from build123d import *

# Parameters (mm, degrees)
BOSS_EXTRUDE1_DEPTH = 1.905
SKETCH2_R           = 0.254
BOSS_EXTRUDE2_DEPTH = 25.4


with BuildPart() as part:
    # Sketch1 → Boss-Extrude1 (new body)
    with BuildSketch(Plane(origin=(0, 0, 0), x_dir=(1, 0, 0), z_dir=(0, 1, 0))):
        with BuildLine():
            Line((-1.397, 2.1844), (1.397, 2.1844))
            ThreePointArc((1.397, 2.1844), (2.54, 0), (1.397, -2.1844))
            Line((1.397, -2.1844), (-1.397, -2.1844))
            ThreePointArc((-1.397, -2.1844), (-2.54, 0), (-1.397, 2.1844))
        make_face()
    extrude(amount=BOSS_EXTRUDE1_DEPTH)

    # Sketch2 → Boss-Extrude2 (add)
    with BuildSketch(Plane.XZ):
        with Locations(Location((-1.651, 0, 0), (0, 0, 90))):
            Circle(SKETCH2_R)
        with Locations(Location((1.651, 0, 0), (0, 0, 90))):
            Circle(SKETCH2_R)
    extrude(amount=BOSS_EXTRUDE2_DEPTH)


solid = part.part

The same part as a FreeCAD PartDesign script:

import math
import FreeCAD as App
import Part
import Sketcher
Q = App.Units.Quantity

doc = App.newDocument("Part")
body = doc.addObject("PartDesign::Body", "Body")

# Sketch on XZ plane
sketch1 = doc.addObject("Sketcher::SketchObject", "Sketch")
body.addObject(sketch1)
sketch1.AttachmentSupport = (doc.XZ_Plane, [""])
sketch1.MapMode = "FlatFace"
sketch1.addGeometry([
    Part.LineSegment(App.Vector(1.397, -2.1844, 0), App.Vector(-1.397, -2.1844, 0)),
    Part.ArcOfCircle(Part.Circle(App.Vector(0.118816, 0, 0), App.Vector(0, 0, 1), 2.658816), math.radians(124.75785), math.radians(235.24215)),
    Part.LineSegment(App.Vector(-1.397, 2.1844, 0), App.Vector(1.397, 2.1844, 0)),
    Part.ArcOfCircle(Part.Circle(App.Vector(-0.118816, 0, 0), App.Vector(0, 0, 1), 2.658816), math.radians(-55.24215), math.radians(55.24215)),
], False)
sketch1.addConstraint([
    Sketcher.Constraint("Coincident", 0, 2, 1, 2),
    Sketcher.Constraint("Coincident", 1, 1, 2, 1),
    Sketcher.Constraint("Coincident", 2, 2, 3, 2),
    Sketcher.Constraint("Coincident", 3, 1, 0, 1),
    Sketcher.Constraint("Horizontal", 0),
    Sketcher.Constraint("Horizontal", 2),
    Sketcher.Constraint("Equal", 1, 3),
    Sketcher.Constraint("Symmetric", 1, 3, 3, 3, -1, 1),
    Sketcher.Constraint("Symmetric", 0, 2, 1, 1, -1),
    Sketcher.Constraint("DistanceX", 0, 2, 0, 1, Q("0.11 in")),
    Sketcher.Constraint("DistanceY", 0, 2, -1, 1, Q("0.086 in")),
    Sketcher.Constraint("Radius", 1, Q("2.658816 mm")),
])
pad1 = doc.addObject("PartDesign::Pad", "Pad")
body.addObject(pad1)
pad1.Profile = sketch1
pad1.Length = Q("0.075 in")
pad1.Reversed = True

# Sketch on XZ plane
sketch2 = doc.addObject("Sketcher::SketchObject", "Sketch001")
body.addObject(sketch2)
sketch2.AttachmentSupport = (doc.XZ_Plane, [""])
sketch2.MapMode = "FlatFace"
sketch2.addGeometry([
    Part.Circle(App.Vector(-1.651, 0, 0), App.Vector(0, 0, 1), 0.254),
    Part.Circle(App.Vector(1.651, 0, 0), App.Vector(0, 0, 1), 0.254),
], False)
sketch2.addConstraint([
    Sketcher.Constraint("Equal", 0, 1),
    Sketcher.Constraint("Symmetric", 0, 3, 1, 3, -1, 1),
    Sketcher.Constraint("PointOnObject", 0, 3, -1),
    Sketcher.Constraint("Diameter", 0, Q("0.02 in")),
    Sketcher.Constraint("DistanceX", 0, 3, 1, 3, Q("0.13 in")),
])
pad2 = doc.addObject("PartDesign::Pad", "Pad001")
body.addObject(pad2)
pad2.Profile = sketch2
pad2.Length = Q("1 in")

doc.recompute()
